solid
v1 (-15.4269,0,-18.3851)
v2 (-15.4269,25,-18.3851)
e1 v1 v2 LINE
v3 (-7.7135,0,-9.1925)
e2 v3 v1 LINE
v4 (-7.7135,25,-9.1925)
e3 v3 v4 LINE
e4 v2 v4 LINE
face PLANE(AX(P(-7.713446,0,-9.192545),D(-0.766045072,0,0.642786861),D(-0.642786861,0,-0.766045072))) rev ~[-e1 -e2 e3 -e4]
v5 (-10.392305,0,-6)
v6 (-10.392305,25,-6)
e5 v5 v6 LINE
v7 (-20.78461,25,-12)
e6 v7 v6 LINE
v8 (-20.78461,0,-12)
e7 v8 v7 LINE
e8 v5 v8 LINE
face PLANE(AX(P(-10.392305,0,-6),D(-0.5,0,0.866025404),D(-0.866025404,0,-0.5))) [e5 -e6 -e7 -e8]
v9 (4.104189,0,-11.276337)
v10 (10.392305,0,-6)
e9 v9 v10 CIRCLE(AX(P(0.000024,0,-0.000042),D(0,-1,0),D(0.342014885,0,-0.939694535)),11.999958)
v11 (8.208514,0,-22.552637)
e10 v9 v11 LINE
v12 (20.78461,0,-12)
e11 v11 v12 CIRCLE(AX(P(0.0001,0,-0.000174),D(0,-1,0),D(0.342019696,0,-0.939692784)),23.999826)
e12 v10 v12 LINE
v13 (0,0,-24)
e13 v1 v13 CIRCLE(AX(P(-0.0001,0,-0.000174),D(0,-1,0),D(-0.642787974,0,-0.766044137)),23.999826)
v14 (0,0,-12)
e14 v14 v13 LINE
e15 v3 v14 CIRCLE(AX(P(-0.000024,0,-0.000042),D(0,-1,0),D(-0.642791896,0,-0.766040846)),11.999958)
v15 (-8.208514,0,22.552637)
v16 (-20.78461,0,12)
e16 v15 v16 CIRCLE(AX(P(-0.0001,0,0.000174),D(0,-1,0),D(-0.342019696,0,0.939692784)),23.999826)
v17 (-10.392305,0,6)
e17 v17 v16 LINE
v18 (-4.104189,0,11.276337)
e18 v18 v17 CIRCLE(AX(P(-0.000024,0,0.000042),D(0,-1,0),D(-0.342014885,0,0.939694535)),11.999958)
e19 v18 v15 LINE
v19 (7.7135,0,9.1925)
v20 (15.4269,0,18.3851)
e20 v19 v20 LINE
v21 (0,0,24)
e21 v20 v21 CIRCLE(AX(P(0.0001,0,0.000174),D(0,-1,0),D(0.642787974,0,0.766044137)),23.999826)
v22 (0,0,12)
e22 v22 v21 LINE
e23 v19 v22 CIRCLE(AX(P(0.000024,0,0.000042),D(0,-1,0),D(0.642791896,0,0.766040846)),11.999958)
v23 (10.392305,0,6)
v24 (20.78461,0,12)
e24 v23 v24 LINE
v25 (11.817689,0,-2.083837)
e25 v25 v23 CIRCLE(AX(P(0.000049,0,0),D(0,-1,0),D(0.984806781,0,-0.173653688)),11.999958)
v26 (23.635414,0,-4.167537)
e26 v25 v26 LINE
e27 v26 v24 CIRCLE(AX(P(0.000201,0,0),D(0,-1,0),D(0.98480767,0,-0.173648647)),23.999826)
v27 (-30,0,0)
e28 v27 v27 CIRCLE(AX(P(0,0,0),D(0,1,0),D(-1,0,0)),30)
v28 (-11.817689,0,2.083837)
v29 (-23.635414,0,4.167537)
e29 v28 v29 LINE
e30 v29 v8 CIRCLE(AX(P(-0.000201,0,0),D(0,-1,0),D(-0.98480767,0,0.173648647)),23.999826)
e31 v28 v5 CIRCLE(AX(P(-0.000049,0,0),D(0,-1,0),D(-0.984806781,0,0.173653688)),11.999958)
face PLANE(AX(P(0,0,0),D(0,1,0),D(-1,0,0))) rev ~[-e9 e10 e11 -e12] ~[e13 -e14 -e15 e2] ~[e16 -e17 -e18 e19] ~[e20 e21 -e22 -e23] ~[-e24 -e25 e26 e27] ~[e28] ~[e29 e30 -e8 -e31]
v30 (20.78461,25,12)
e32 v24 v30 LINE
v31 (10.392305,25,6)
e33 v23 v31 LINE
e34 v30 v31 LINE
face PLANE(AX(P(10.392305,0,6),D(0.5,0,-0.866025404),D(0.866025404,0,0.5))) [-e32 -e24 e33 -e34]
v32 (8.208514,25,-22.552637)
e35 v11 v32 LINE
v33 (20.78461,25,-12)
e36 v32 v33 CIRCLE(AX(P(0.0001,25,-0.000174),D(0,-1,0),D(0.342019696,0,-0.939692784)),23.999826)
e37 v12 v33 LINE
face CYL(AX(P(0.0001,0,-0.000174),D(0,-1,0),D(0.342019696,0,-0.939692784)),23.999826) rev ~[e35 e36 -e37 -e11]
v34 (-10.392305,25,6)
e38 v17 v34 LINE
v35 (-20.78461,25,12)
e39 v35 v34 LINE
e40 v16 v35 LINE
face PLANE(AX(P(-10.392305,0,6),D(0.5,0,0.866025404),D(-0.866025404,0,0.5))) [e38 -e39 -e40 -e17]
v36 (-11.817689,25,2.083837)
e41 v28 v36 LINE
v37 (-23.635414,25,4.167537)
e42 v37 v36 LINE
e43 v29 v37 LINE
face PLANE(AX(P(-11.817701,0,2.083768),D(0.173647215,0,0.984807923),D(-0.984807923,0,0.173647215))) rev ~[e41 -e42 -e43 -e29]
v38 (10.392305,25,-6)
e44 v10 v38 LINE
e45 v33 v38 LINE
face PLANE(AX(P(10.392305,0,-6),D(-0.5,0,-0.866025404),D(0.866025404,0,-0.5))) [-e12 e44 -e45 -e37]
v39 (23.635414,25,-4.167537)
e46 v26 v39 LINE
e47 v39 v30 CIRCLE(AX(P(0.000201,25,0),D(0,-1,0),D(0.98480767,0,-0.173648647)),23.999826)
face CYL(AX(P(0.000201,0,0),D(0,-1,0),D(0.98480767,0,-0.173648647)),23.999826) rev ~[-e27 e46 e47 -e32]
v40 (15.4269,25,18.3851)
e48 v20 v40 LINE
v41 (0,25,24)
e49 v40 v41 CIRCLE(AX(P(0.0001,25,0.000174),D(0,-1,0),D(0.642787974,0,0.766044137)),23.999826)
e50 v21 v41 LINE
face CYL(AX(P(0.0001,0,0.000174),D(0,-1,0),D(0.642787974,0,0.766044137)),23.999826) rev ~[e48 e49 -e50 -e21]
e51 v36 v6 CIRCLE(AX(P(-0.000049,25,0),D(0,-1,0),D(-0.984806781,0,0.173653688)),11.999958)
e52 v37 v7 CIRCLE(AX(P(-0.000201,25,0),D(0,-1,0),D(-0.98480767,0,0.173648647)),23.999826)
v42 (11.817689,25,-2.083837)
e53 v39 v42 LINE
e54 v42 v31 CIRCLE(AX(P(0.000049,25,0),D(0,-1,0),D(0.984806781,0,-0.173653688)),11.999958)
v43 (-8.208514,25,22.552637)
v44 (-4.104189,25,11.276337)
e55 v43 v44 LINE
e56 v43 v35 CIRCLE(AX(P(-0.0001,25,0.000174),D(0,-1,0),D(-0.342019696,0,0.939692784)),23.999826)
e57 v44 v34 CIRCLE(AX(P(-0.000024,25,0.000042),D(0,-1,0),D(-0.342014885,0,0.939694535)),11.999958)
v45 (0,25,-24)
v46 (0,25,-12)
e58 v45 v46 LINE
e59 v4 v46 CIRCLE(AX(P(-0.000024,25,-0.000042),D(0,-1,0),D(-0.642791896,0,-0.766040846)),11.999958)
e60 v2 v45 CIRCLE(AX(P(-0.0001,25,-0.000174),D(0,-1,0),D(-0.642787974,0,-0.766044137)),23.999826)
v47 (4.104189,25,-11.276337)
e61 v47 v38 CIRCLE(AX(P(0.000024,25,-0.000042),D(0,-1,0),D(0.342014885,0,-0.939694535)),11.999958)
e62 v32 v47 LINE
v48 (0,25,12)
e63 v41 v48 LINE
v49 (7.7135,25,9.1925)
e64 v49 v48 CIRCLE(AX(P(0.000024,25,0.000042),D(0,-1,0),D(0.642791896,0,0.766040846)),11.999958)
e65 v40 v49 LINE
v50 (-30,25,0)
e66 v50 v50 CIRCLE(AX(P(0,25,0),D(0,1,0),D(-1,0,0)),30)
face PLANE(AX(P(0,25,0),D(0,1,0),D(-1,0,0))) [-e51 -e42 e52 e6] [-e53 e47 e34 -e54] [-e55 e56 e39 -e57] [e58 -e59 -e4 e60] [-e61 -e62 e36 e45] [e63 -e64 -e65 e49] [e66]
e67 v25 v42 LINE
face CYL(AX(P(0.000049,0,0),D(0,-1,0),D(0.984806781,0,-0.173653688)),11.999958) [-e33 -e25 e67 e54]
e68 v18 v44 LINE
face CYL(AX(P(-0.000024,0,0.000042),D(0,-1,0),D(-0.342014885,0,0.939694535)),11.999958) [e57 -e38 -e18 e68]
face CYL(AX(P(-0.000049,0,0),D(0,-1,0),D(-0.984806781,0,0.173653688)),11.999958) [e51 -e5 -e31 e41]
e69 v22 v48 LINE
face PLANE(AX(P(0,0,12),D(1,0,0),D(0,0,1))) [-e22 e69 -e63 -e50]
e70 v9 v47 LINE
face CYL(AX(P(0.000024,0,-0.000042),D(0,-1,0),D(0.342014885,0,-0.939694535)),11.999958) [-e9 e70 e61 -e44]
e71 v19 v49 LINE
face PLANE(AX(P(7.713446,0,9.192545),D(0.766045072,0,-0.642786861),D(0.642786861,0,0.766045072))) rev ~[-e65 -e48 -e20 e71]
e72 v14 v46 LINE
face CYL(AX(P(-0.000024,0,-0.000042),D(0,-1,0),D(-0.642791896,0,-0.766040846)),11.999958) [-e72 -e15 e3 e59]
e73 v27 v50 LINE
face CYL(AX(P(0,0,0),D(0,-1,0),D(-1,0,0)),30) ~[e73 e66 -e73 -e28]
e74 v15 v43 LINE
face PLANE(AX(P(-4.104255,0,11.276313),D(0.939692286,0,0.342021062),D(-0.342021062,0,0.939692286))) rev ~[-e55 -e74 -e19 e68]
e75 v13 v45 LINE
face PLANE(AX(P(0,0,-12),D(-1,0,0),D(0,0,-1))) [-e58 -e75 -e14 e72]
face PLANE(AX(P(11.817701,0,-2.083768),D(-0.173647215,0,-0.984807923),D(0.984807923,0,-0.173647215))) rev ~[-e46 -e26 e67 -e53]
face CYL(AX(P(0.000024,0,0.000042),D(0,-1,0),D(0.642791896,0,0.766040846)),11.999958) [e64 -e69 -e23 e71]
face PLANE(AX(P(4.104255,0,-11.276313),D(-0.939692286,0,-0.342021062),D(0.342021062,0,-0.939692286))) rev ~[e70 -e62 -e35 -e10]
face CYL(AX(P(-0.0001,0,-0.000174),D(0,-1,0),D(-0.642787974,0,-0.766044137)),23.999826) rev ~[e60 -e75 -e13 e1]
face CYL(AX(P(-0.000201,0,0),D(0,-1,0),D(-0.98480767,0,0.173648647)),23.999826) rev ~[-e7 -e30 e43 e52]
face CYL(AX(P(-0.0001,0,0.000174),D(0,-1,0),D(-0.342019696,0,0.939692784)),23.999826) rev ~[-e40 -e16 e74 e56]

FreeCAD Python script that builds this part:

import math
import FreeCAD as App
import Part
import Sketcher
from FreeCAD import Vector
Q = App.Units.Quantity

doc = App.newDocument("Part")
body = doc.addObject("PartDesign::Body", "Body")

# Sketch on XZ plane
sketch1 = body.newObject("Sketcher::SketchObject", "Sketch")
sketch1.AttachmentSupport = (doc.getObject("XZ_Plane"), [""])
sketch1.MapMode = "FlatFace"
sketch1.addGeometry(Part.Circle(Vector(0, 0, 0), Vector(0, 0, 1), 30), False)
sketch1.addConstraint([
    Sketcher.Constraint("Coincident", 0, 3, -1, 1),
    Sketcher.Constraint("Diameter", 0, Q("60 mm")),
])
pad1 = body.newObject("PartDesign::Pad", "Pad")
pad1.Profile = sketch1
pad1.Length = 25
pad1.Reversed = True

# Sketch on XZ plane
sketch2 = body.newObject("Sketcher::SketchObject", "Sketch001")
sketch2.AttachmentSupport = (doc.getObject("XZ_Plane"), [""])
sketch2.MapMode = "FlatFace"
sketch2.addGeometry([
    Part.LineSegment(Vector(0, 24, 0), Vector(0, 12, 0)),
    Part.ArcOfCircle(Part.Circle(Vector(0, 0, 0), Vector(0, 0, 1), 12), math.radians(50), math.radians(90)),
    Part.LineSegment(Vector(8, 9, 0), Vector(15, 18, 0)),
    Part.ArcOfCircle(Part.Circle(Vector(0, 0, 0), Vector(0, 0, 1), 24), math.radians(50), math.radians(90)),
], False)
sketch2.addConstraint([
    Sketcher.Constraint("Coincident", 0, 2, 1, 2),
    Sketcher.Constraint("Coincident", 1, 1, 2, 1),
    Sketcher.Constraint("Coincident", 2, 2, 3, 1),
    Sketcher.Constraint("Coincident", 3, 2, 0, 1),
    Sketcher.Constraint("Vertical", 0),
    Sketcher.Constraint("Coincident", 1, 3, -1, 1),
    Sketcher.Constraint("Coincident", 3, 3, -1, 1),
    Sketcher.Constraint("PointOnObject", 0, 2, -2),
    Sketcher.Constraint("Radius", 1, Q("12 mm")),
    Sketcher.Constraint("Radius", 3, Q("24 mm")),
    Sketcher.Constraint("Angle", 2, Q("50 deg")),
    Sketcher.Constraint("DistanceX", -1, 1, 2, 2, Q("15.427 mm")),
])
pocket1 = body.newObject("PartDesign::Pocket", "Pocket")
pocket1.Profile = sketch2
pocket1.Type = "ThroughAll"
doc.recompute()

polarpattern = body.newObject("PartDesign::PolarPattern", "PolarPattern")
polarpattern.Originals = [pocket1]
polarpattern.Axis = (doc.getObject("Y_Axis"), [""])
polarpattern.Angle = 360
polarpattern.Occurrences = 6
body.Tip = polarpattern

doc.recompute()
